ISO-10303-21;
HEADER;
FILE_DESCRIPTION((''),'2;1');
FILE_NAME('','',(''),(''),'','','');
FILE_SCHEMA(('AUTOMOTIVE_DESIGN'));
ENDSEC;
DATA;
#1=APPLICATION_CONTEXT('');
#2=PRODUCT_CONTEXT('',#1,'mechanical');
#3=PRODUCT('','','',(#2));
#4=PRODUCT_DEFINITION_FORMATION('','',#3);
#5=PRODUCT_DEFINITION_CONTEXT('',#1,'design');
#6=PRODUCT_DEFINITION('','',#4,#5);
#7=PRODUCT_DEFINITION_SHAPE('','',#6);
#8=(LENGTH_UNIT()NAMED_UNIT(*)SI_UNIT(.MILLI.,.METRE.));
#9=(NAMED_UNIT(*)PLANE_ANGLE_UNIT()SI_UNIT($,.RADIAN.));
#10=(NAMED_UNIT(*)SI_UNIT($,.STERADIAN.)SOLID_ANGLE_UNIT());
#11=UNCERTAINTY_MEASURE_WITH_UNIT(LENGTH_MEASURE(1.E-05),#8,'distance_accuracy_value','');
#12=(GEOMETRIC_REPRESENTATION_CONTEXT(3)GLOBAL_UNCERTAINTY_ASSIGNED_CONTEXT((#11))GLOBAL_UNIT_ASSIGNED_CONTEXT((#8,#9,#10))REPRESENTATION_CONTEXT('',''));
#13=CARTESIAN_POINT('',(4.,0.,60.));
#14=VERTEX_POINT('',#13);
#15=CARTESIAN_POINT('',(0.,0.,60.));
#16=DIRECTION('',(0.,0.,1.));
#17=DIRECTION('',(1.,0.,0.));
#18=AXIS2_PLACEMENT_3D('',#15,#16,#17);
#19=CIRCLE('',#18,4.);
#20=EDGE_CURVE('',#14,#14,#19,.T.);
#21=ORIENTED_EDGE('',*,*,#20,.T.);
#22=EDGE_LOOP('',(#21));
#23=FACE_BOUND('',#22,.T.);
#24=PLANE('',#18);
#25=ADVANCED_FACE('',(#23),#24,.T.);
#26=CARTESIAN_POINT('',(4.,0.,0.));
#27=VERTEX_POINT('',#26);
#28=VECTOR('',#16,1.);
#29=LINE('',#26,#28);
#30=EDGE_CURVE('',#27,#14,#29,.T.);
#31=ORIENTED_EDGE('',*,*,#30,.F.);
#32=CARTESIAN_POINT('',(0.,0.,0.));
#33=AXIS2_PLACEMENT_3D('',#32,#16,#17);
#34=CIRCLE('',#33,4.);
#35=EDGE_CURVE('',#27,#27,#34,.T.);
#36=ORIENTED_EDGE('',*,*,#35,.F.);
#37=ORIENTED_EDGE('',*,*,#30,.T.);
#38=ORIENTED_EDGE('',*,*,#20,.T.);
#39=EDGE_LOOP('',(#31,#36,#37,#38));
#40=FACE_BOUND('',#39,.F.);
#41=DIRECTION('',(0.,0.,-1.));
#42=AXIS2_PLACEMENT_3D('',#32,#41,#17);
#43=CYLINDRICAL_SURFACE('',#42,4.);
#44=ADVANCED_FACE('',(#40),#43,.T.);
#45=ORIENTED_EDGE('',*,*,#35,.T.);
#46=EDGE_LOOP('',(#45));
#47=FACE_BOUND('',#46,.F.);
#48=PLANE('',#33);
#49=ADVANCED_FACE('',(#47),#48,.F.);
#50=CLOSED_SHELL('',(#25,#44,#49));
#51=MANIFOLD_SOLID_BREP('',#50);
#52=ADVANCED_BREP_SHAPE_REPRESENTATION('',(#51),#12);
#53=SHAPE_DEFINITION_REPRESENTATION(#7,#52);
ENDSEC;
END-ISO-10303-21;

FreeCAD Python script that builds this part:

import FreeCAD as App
import Part
import Sketcher

V = App.Vector
Q = App.Units.Quantity

doc = App.newDocument("Part")
params = doc.addObject("Spreadsheet::Sheet", "Params")
for row, (alias, value) in enumerate([
    ("sketch1_diameter", "8 mm"),
    ("pad1_length", "60 mm"),
], start=1):
    params.set(f"A{row}", alias)
    params.set(f"B{row}", "=" + value)
    params.setAlias(f"B{row}", alias)

body = doc.addObject("PartDesign::Body", "Body")

# Sketch on XY plane
sketch1 = body.newObject("Sketcher::SketchObject", "Sketch")
sketch1.AttachmentSupport = (doc.getObject("XY_Plane"), [""])
sketch1.MapMode = "FlatFace"
sketch1.addGeometry(Part.Circle(V(0, 0, 0), V(0, 0, 1), 4), False)
sketch1.addConstraint(Sketcher.Constraint("Coincident", 0, 3, -1, 1))
sketch1.addConstraint(Sketcher.Constraint("Diameter", 0, Q("8 mm")))
sketch1.setExpression("Constraints[1]", "Params.sketch1_diameter")
pad1 = body.newObject("PartDesign::Pad", "Pad")
pad1.Profile = sketch1
pad1.setExpression("Length", "Params.pad1_length")

doc.recompute()
